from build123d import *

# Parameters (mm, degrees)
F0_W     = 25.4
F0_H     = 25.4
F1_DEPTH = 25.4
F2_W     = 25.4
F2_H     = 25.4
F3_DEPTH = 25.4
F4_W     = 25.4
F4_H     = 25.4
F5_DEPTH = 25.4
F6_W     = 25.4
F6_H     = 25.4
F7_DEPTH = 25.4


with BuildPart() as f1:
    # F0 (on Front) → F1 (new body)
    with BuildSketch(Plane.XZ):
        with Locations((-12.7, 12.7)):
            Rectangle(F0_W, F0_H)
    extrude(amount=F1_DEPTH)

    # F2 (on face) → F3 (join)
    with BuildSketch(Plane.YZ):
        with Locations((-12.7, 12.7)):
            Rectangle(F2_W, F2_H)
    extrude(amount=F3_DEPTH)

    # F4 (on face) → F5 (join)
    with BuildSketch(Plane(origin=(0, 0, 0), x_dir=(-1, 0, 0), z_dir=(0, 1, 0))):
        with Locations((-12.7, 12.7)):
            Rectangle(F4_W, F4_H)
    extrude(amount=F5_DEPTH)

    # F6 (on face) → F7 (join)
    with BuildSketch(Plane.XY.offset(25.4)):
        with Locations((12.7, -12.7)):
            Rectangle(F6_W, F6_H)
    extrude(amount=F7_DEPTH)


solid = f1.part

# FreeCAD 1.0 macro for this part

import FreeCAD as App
import Part
import Sketcher
from FreeCAD import Vector
Q = App.Units.Quantity


def add_polygon(sketch, points):
    """Adds a closed chain of lines whose ends are joined by coincident constraints."""
    first, n = sketch.GeometryCount, len(points)
    for a, b in zip(points, points[1:] + points[:1]):
        sketch.addGeometry(Part.LineSegment(App.Vector(*a, 0), App.Vector(*b, 0)), False)
    for i in range(n):
        sketch.addConstraint(Sketcher.Constraint("Coincident", first + i, 2, first + (i + 1) % n, 1))

doc = App.newDocument("Part")
body = doc.addObject("PartDesign::Body", "Body")

# Sketch on XZ plane
sketch1 = body.newObject("Sketcher::SketchObject", "Sketch")
sketch1.AttachmentSupport = (doc.getObject("XZ_Plane"), [""])
sketch1.MapMode = "FlatFace"
add_polygon(sketch1, [(-25.4, 25.4), (-25.4, 0), (0, 0), (0, 25.4)])  # lines 0-3
sketch1.addConstraint([
    Sketcher.Constraint("Vertical", 0),
    Sketcher.Constraint("Horizontal", 1),
    Sketcher.Constraint("Vertical", 2),
    Sketcher.Constraint("Horizontal", 3),
    Sketcher.Constraint("Coincident", 1, 2, -1, 1),
    Sketcher.Constraint("Equal", 3, 0),
    Sketcher.Constraint("DistanceX", 1, 1, 1, 2, Q("1 in")),
])
pad1 = body.newObject("PartDesign::Pad", "Pad")
pad1.Profile = sketch1
pad1.Length = Q("1 in")

# Sketch on YZ plane
sketch2 = body.newObject("Sketcher::SketchObject", "Sketch001")
sketch2.AttachmentSupport = (doc.getObject("YZ_Plane"), [""])
sketch2.MapMode = "FlatFace"
add_polygon(sketch2, [(-25.4, 25.4), (-25.4, 0), (0, 0), (0, 25.4)])  # lines 0-3
sketch2.addConstraint([
    Sketcher.Constraint("Vertical", 0),
    Sketcher.Constraint("Horizontal", 1),
    Sketcher.Constraint("Vertical", 2),
    Sketcher.Constraint("Horizontal", 3),
    Sketcher.Constraint("Coincident", 1, 2, -1, 1),
    Sketcher.Constraint("Equal", 3, 0),
    Sketcher.Constraint("DistanceX", 1, 1, 1, 2, Q("1 in")),
])
pad2 = body.newObject("PartDesign::Pad", "Pad001")
pad2.Profile = sketch2
pad2.Length = Q("1 in")

# Sketch on XZ plane
sketch3 = body.newObject("Sketcher::SketchObject", "Sketch002")
sketch3.AttachmentSupport = (doc.getObject("XZ_Plane"), [""])
sketch3.MapMode = "FlatFace"
add_polygon(sketch3, [(25.4, 25.4), (25.4, 0), (0, 0), (0, 25.4)])  # lines 0-3
sketch3.addConstraint([
    Sketcher.Constraint("Vertical", 0),
    Sketcher.Constraint("Horizontal", 1),
    Sketcher.Constraint("Vertical", 2),
    Sketcher.Constraint("Horizontal", 3),
    Sketcher.Constraint("Coincident", 1, 2, -1, 1),
    Sketcher.Constraint("Equal", 3, 0),
    Sketcher.Constraint("DistanceX", 1, 2, 1, 1, Q("1 in")),
])
pad3 = body.newObject("PartDesign::Pad", "Pad002")
pad3.Profile = sketch3
pad3.Length = Q("1 in")
pad3.Reversed = True

# Sketch on XY plane
sketch4 = body.newObject("Sketcher::SketchObject", "Sketch003")
sketch4.AttachmentSupport = (doc.getObject("XY_Plane"), [""])
sketch4.MapMode = "FlatFace"
sketch4.AttachmentOffset = App.Placement(Vector(0, 0, 1 * 25.4), App.Rotation())
add_polygon(sketch4, [(0, 0), (0, -25.4), (25.4, -25.4), (25.4, 0)])  # lines 0-3
sketch4.addConstraint([
    Sketcher.Constraint("Vertical", 0),
    Sketcher.Constraint("Horizontal", 1),
    Sketcher.Constraint("Vertical", 2),
    Sketcher.Constraint("Horizontal", 3),
    Sketcher.Constraint("Coincident", 3, 2, -1, 1),
    Sketcher.Constraint("Equal", 3, 0),
    Sketcher.Constraint("DistanceX", 1, 1, 1, 2, Q("1 in")),
])
pad4 = body.newObject("PartDesign::Pad", "Pad003")
pad4.Profile = sketch4
pad4.Length = Q("1 in")

doc.recompute()
